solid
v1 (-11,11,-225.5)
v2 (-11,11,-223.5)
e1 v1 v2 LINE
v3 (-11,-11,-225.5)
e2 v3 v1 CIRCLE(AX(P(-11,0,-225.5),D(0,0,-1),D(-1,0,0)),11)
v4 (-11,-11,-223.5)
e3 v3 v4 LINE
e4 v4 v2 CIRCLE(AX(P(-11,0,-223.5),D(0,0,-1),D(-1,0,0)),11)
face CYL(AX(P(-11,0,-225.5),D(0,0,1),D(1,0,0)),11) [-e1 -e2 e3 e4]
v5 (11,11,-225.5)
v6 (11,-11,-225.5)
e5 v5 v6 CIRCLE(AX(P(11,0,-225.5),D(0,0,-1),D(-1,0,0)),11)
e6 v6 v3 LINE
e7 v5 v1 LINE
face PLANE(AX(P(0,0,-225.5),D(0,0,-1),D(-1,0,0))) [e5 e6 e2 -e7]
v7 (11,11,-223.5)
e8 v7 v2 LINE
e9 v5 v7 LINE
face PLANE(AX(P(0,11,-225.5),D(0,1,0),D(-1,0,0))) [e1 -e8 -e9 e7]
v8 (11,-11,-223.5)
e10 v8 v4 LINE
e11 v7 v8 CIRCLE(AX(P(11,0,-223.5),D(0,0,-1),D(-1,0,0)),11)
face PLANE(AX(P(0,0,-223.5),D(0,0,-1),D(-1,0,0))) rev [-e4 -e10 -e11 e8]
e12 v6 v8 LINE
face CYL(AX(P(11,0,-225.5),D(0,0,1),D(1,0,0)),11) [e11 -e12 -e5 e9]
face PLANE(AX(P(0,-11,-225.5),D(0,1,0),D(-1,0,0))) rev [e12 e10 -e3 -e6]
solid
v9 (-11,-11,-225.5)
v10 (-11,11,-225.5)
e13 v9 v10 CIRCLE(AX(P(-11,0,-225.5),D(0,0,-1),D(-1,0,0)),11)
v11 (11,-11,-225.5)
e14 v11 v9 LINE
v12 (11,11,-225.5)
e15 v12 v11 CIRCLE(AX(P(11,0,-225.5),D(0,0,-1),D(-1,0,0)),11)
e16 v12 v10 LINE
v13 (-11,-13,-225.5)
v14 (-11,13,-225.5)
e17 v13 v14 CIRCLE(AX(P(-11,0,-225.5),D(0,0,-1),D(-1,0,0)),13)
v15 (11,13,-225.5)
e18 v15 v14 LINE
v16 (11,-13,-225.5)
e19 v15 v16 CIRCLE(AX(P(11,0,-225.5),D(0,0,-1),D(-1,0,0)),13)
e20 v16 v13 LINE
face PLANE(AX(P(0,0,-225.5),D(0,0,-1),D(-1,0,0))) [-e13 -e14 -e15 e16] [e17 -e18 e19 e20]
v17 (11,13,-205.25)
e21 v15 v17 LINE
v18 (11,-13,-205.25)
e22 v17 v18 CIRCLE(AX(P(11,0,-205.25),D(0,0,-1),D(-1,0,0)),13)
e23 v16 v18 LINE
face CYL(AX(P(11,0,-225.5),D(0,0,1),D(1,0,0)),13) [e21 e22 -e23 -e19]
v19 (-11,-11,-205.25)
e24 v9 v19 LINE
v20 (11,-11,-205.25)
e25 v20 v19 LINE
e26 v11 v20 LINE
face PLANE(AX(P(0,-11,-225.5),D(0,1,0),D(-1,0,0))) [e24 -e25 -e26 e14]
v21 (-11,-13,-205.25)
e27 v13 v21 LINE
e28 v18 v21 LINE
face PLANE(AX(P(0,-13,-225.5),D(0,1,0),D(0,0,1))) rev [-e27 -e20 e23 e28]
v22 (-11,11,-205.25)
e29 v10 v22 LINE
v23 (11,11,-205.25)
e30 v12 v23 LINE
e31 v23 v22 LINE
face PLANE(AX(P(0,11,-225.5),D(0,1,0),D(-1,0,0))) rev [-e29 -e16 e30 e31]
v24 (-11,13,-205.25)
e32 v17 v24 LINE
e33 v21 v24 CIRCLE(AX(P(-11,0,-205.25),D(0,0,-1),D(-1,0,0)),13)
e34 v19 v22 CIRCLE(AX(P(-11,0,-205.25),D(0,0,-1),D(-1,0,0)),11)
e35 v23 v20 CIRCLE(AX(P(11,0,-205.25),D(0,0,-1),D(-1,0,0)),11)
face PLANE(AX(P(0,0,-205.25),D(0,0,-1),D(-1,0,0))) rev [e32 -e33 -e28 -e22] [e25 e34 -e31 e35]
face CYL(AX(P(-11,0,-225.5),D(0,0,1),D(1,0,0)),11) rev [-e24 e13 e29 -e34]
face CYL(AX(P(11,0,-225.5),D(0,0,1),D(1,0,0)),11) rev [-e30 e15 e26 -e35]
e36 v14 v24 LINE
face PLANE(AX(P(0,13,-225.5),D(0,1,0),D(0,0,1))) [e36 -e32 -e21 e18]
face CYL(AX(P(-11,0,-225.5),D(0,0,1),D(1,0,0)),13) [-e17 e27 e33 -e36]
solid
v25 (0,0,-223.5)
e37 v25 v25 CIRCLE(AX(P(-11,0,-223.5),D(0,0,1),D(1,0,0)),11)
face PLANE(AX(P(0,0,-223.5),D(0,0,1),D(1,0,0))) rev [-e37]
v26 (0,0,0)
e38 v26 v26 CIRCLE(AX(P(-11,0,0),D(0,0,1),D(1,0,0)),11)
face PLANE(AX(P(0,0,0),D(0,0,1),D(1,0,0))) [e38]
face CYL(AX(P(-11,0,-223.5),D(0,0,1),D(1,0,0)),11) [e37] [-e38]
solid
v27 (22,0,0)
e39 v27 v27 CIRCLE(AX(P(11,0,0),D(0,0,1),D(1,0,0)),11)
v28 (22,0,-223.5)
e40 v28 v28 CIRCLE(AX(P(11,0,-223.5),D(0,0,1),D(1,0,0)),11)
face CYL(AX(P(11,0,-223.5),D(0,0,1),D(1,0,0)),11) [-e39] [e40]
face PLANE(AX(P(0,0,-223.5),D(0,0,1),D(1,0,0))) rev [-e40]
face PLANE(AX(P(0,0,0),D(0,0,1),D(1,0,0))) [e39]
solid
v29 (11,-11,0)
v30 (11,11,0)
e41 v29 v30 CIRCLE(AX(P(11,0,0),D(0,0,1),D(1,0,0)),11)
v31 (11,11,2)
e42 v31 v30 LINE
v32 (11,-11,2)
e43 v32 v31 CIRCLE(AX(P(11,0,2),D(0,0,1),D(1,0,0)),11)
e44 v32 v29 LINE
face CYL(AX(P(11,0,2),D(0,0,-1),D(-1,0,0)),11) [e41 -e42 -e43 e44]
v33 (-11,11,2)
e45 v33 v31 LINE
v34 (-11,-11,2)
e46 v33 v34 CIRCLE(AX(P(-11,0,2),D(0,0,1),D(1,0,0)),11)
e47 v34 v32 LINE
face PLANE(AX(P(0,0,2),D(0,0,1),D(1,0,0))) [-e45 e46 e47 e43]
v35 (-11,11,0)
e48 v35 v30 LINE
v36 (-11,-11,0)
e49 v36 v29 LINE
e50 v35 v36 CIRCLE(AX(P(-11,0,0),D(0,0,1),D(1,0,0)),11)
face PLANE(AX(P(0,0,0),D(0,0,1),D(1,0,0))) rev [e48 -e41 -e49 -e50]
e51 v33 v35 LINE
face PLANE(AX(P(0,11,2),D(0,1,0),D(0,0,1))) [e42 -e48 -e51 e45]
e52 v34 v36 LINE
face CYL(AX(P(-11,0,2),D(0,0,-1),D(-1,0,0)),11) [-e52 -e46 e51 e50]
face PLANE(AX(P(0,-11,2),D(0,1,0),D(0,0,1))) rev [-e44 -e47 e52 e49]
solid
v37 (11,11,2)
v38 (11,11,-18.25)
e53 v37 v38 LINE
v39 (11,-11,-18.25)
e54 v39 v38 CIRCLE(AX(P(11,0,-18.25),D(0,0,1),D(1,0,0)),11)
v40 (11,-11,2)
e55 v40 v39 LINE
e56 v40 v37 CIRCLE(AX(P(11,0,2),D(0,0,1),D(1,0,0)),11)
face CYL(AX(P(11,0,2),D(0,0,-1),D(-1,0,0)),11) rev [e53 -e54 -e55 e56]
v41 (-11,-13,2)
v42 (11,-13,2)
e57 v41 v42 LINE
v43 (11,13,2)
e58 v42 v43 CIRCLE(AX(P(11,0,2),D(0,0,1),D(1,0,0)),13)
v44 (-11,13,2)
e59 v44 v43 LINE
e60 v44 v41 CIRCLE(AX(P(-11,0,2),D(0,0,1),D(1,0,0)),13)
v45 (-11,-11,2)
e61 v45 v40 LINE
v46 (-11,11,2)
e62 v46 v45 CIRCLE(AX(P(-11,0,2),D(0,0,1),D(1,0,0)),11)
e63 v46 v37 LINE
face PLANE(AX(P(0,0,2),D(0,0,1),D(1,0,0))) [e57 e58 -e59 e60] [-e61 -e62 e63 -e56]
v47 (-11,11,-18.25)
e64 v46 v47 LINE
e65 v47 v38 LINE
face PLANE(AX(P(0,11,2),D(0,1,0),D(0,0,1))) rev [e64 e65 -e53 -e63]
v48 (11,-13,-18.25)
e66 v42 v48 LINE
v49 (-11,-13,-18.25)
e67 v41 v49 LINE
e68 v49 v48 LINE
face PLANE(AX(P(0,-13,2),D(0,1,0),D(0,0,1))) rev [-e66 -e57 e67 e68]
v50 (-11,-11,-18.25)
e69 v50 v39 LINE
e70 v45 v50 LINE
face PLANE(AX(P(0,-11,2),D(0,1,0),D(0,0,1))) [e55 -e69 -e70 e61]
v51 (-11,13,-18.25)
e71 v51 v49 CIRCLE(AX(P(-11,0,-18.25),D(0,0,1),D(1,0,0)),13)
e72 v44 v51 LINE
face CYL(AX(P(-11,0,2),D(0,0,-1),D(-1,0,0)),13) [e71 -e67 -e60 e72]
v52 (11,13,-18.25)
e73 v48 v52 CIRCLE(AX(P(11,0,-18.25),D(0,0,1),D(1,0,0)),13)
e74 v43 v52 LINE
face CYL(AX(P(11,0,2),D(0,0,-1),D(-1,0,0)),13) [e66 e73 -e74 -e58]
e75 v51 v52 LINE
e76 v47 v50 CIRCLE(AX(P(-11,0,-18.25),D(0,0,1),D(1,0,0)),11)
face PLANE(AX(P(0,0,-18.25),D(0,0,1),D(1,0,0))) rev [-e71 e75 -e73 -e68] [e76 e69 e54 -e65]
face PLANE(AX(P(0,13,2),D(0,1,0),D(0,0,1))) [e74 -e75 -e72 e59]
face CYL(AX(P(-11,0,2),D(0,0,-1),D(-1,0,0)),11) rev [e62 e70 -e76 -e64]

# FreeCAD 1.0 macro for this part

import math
import FreeCAD as App
import Part
import Sketcher
from FreeCAD import Vector

doc = App.newDocument("Part")
params = doc.addObject("Spreadsheet::Sheet", "Params")
for row, (alias, value) in enumerate([
    ("sketch1_diameter", "22 mm"),
    ("pad1_length", "223.5 mm"),
    ("sketch2_diameter", "22 mm"),
    ("pad2_length", "223.5 mm"),
    ("sketch3_radius", "13 mm"),
    ("sketch3_radius2", "11 mm"),
    ("sketch3_width", "22 mm"),
    ("pad3_length", "2 mm"),
    ("pad3_length2", "18.25 mm"),
    ("sketch4_radius", "11 mm"),
    ("sketch4_width", "22 mm"),
    ("pad4_length", "2 mm"),
    ("sketch5_radius", "13 mm"),
    ("sketch5_radius2", "11 mm"),
    ("sketch5_width", "22 mm"),
    ("pad5_length", "2 mm"),
    ("pad5_length2", "18.25 mm"),
    ("sketch6_radius", "11 mm"),
    ("sketch6_width", "22 mm"),
    ("pad6_length", "2 mm"),
], start=1):
    params.set(f"A{row}", alias)
    params.set(f"B{row}", "=" + value)
    params.setAlias(f"B{row}", alias)

body = doc.addObject("PartDesign::Body", "Body")

# Sketch on XY plane
sketch1 = body.newObject("Sketcher::SketchObject", "Sketch")
sketch1.AttachmentSupport = (doc.getObject("XY_Plane"), [""])
sketch1.MapMode = "FlatFace"
sketch1.addGeometry(Part.Circle(Vector(-11, 0, 0), Vector(0, 0, 1), 11), False)
sketch1.addConstraint(Sketcher.Constraint("PointOnObject", 0, 3, -1))
sketch1.addConstraint(Sketcher.Constraint("Diameter", 0, 22.0))
sketch1.addConstraint(Sketcher.Constraint("DistanceX", 0, 3, -1, 1, 11.0))
sketch1.setExpression("Constraints[1]", "Params.sketch1_diameter")
pad1 = body.newObject("PartDesign::Pad", "Pad")
pad1.Profile = sketch1
pad1.setExpression("Length", "Params.pad1_length")
pad1.Reversed = True
body2 = doc.addObject("PartDesign::Body", "Body001")

# Sketch on XY plane
sketch2 = body2.newObject("Sketcher::SketchObject", "Sketch001")
sketch2.AttachmentSupport = (doc.getObject("XY_Plane001"), [""])
sketch2.MapMode = "FlatFace"
sketch2.addGeometry(Part.Circle(Vector(11, 0, 0), Vector(0, 0, 1), 11), False)
sketch2.addConstraint(Sketcher.Constraint("PointOnObject", 0, 3, -1))
sketch2.addConstraint(Sketcher.Constraint("Diameter", 0, 22.0))
sketch2.addConstraint(Sketcher.Constraint("DistanceX", -1, 1, 0, 3, 11.0))
sketch2.setExpression("Constraints[1]", "Params.sketch2_diameter")
pad2 = body2.newObject("PartDesign::Pad", "Pad001")
pad2.Profile = sketch2
pad2.setExpression("Length", "Params.pad2_length")
pad2.Reversed = True
body3 = doc.addObject("PartDesign::Body", "Body002")

# Sketch on XY plane
sketch3 = body3.newObject("Sketcher::SketchObject", "Sketch002")
sketch3.AttachmentSupport = (doc.getObject("XY_Plane002"), [""])
sketch3.MapMode = "FlatFace"
sketch3.addGeometry(Part.LineSegment(Vector(11, 13, 0), Vector(-11, 13, 0)), False)
sketch3.addGeometry(Part.ArcOfCircle(Part.Circle(Vector(-11, 0, 0), Vector(0, 0, 1), 13), math.radians(90), math.radians(270)), False)
sketch3.addGeometry(Part.LineSegment(Vector(-11, -13, 0), Vector(11, -13, 0)), False)
sketch3.addGeometry(Part.ArcOfCircle(Part.Circle(Vector(11, 0, 0), Vector(0, 0, 1), 13), math.radians(-90), math.radians(90)), False)
sketch3.addGeometry(Part.ArcOfCircle(Part.Circle(Vector(11, 0, 0), Vector(0, 0, 1), 11), math.radians(-90), math.radians(0)), False)
sketch3.addGeometry(Part.LineSegment(Vector(11, -11, 0), Vector(-11, -11, 0)), False)
sketch3.addGeometry(Part.ArcOfCircle(Part.Circle(Vector(-11, 0, 0), Vector(0, 0, 1), 11), math.radians(90), math.radians(270)), False)
sketch3.addGeometry(Part.LineSegment(Vector(-11, 11, 0), Vector(11, 11, 0)), False)
sketch3.addGeometry(Part.ArcOfCircle(Part.Circle(Vector(11, 0, 0), Vector(0, 0, 1), 11), math.radians(0), math.radians(90)), False)
sketch3.addConstraint(Sketcher.Constraint("Tangent", 0, 2, 1, 1))
sketch3.addConstraint(Sketcher.Constraint("Tangent", 1, 2, 2, 1))
sketch3.addConstraint(Sketcher.Constraint("Tangent", 2, 2, 3, 1))
sketch3.addConstraint(Sketcher.Constraint("Tangent", 3, 2, 0, 1))
sketch3.addConstraint(Sketcher.Constraint("Tangent", 4, 1, 5, 1))
sketch3.addConstraint(Sketcher.Constraint("Tangent", 5, 2, 6, 2))
sketch3.addConstraint(Sketcher.Constraint("Tangent", 6, 1, 7, 1))
sketch3.addConstraint(Sketcher.Constraint("Tangent", 7, 2, 8, 2))
sketch3.addConstraint(Sketcher.Constraint("Tangent", 8, 1, 4, 2))
sketch3.addConstraint(Sketcher.Constraint("Horizontal", 0))
sketch3.addConstraint(Sketcher.Constraint("Horizontal", 2))
sketch3.addConstraint(Sketcher.Constraint("Horizontal", 5))
sketch3.addConstraint(Sketcher.Constraint("Horizontal", 7))
sketch3.addConstraint(Sketcher.Constraint("Coincident", 4, 3, 3, 3))
sketch3.addConstraint(Sketcher.Constraint("Coincident", 6, 3, 1, 3))
sketch3.addConstraint(Sketcher.Constraint("Symmetric", 1, 3, 3, 3, -1, 1))
sketch3.addConstraint(Sketcher.Constraint("PointOnObject", 8, 1, -1))
sketch3.addConstraint(Sketcher.Constraint("Radius", 1, 13.0))
sketch3.addConstraint(Sketcher.Constraint("Radius", 4, 11.0))
sketch3.addConstraint(Sketcher.Constraint("DistanceX", 0, 2, 0, 1, 22.0))
sketch3.setExpression("Constraints[17]", "Params.sketch3_radius")
sketch3.setExpression("Constraints[18]", "Params.sketch3_radius2")
sketch3.setExpression("Constraints[19]", "Params.sketch3_width")
pad3 = body3.newObject("PartDesign::Pad", "Pad002")
pad3.Profile = sketch3
pad3.Type = "TwoLengths"
pad3.setExpression("Length", "Params.pad3_length")
pad3.setExpression("Length2", "Params.pad3_length2")
body4 = doc.addObject("PartDesign::Body", "Body003")

# Sketch on XY plane
sketch4 = body4.newObject("Sketcher::SketchObject", "Sketch003")
sketch4.AttachmentSupport = (doc.getObject("XY_Plane003"), [""])
sketch4.MapMode = "FlatFace"
sketch4.addGeometry(Part.ArcOfCircle(Part.Circle(Vector(-11, 0, 0), Vector(0, 0, 1), 11), math.radians(90), math.radians(270)), False)
sketch4.addGeometry(Part.LineSegment(Vector(-11, -11, 0), Vector(11, -11, 0)), False)
sketch4.addGeometry(Part.ArcOfCircle(Part.Circle(Vector(11, 0, 0), Vector(0, 0, 1), 11), math.radians(-90), math.radians(90)), False)
sketch4.addGeometry(Part.LineSegment(Vector(11, 11, 0), Vector(-11, 11, 0)), False)
sketch4.addConstraint(Sketcher.Constraint("Tangent", 0, 2, 1, 1))
sketch4.addConstraint(Sketcher.Constraint("Tangent", 1, 2, 2, 1))
sketch4.addConstraint(Sketcher.Constraint("Tangent", 2, 2, 3, 1))
sketch4.addConstraint(Sketcher.Constraint("Tangent", 3, 2, 0, 1))
sketch4.addConstraint(Sketcher.Constraint("Horizontal", 1))
sketch4.addConstraint(Sketcher.Constraint("Horizontal", 3))
sketch4.addConstraint(Sketcher.Constraint("Symmetric", 0, 3, 2, 3, -1, 1))
sketch4.addConstraint(Sketcher.Constraint("Radius", 0, 11.0))
sketch4.addConstraint(Sketcher.Constraint("DistanceX", 1, 1, 1, 2, 22.0))
sketch4.setExpression("Constraints[7]", "Params.sketch4_radius")
sketch4.setExpression("Constraints[8]", "Params.sketch4_width")
pad4 = body4.newObject("PartDesign::Pad", "Pad003")
pad4.Profile = sketch4
pad4.setExpression("Length", "Params.pad4_length")
body5 = doc.addObject("PartDesign::Body", "Body004")

# Sketch on XY plane
sketch5 = body5.newObject("Sketcher::SketchObject", "Sketch004")
sketch5.AttachmentSupport = (doc.getObject("XY_Plane004"), [""])
sketch5.MapMode = "FlatFace"
sketch5.AttachmentOffset = App.Placement(Vector(0, 0, -223.5), App.Rotation())
sketch5.addGeometry(Part.LineSegment(Vector(-11, 13, 0), Vector(11, 13, 0)), False)
sketch5.addGeometry(Part.ArcOfCircle(Part.Circle(Vector(11, 0, 0), Vector(0, 0, 1), 13), math.radians(-90), math.radians(90)), False)
sketch5.addGeometry(Part.LineSegment(Vector(11, -13, 0), Vector(-11, -13, 0)), False)
sketch5.addGeometry(Part.ArcOfCircle(Part.Circle(Vector(-11, 0, 0), Vector(0, 0, 1), 13), math.radians(90), math.radians(270)), False)
sketch5.addGeometry(Part.ArcOfCircle(Part.Circle(Vector(-11, 0, 0), Vector(0, 0, 1), 11), math.radians(180), math.radians(270)), False)
sketch5.addGeometry(Part.LineSegment(Vector(-11, -11, 0), Vector(11, -11, 0)), False)
sketch5.addGeometry(Part.ArcOfCircle(Part.Circle(Vector(11, 0, 0), Vector(0, 0, 1), 11), math.radians(-90), math.radians(90)), False)
sketch5.addGeometry(Part.LineSegment(Vector(11, 11, 0), Vector(-11, 11, 0)), False)
sketch5.addGeometry(Part.ArcOfCircle(Part.Circle(Vector(-11, 0, 0), Vector(0, 0, 1), 11), math.radians(90), math.radians(180)), False)
sketch5.addConstraint(Sketcher.Constraint("Tangent", 0, 2, 1, 2))
sketch5.addConstraint(Sketcher.Constraint("Tangent", 1, 1, 2, 1))
sketch5.addConstraint(Sketcher.Constraint("Tangent", 2, 2, 3, 2))
sketch5.addConstraint(Sketcher.Constraint("Tangent", 3, 1, 0, 1))
sketch5.addConstraint(Sketcher.Constraint("Tangent", 4, 2, 5, 1))
sketch5.addConstraint(Sketcher.Constraint("Tangent", 5, 2, 6, 1))
sketch5.addConstraint(Sketcher.Constraint("Tangent", 6, 2, 7, 1))
sketch5.addConstraint(Sketcher.Constraint("Tangent", 7, 2, 8, 1))
sketch5.addConstraint(Sketcher.Constraint("Tangent", 8, 2, 4, 1))
sketch5.addConstraint(Sketcher.Constraint("Horizontal", 0))
sketch5.addConstraint(Sketcher.Constraint("Horizontal", 2))
sketch5.addConstraint(Sketcher.Constraint("Horizontal", 5))
sketch5.addConstraint(Sketcher.Constraint("Horizontal", 7))
sketch5.addConstraint(Sketcher.Constraint("Coincident", 4, 3, 3, 3))
sketch5.addConstraint(Sketcher.Constraint("Coincident", 6, 3, 1, 3))
sketch5.addConstraint(Sketcher.Constraint("Symmetric", 1, 3, 3, 3, -1, 1))
sketch5.addConstraint(Sketcher.Constraint("PointOnObject", 8, 2, -1))
sketch5.addConstraint(Sketcher.Constraint("Radius", 1, 13.0))
sketch5.addConstraint(Sketcher.Constraint("Radius", 4, 11.0))
sketch5.addConstraint(Sketcher.Constraint("DistanceX", 0, 1, 0, 2, 22.0))
sketch5.setExpression("Constraints[17]", "Params.sketch5_radius")
sketch5.setExpression("Constraints[18]", "Params.sketch5_radius2")
sketch5.setExpression("Constraints[19]", "Params.sketch5_width")
pad5 = body5.newObject("PartDesign::Pad", "Pad004")
pad5.Profile = sketch5
pad5.Type = "TwoLengths"
pad5.setExpression("Length", "Params.pad5_length")
pad5.setExpression("Length2", "Params.pad5_length2")
pad5.Reversed = True
body6 = doc.addObject("PartDesign::Body", "Body005")

# Sketch on XY plane
sketch6 = body6.newObject("Sketcher::SketchObject", "Sketch005")
sketch6.AttachmentSupport = (doc.getObject("XY_Plane005"), [""])
sketch6.MapMode = "FlatFace"
sketch6.AttachmentOffset = App.Placement(Vector(0, 0, -223.5), App.Rotation())
sketch6.addGeometry(Part.ArcOfCircle(Part.Circle(Vector(11, 0, 0), Vector(0, 0, 1), 11), math.radians(-90), math.radians(90)), False)
sketch6.addGeometry(Part.LineSegment(Vector(11, -11, 0), Vector(-11, -11, 0)), False)
sketch6.addGeometry(Part.ArcOfCircle(Part.Circle(Vector(-11, 0, 0), Vector(0, 0, 1), 11), math.radians(90), math.radians(270)), False)
sketch6.addGeometry(Part.LineSegment(Vector(-11, 11, 0), Vector(11, 11, 0)), False)
sketch6.addConstraint(Sketcher.Constraint("Tangent", 0, 1, 1, 1))
sketch6.addConstraint(Sketcher.Constraint("Tangent", 1, 2, 2, 2))
sketch6.addConstraint(Sketcher.Constraint("Tangent", 2, 1, 3, 1))
sketch6.addConstraint(Sketcher.Constraint("Tangent", 3, 2, 0, 2))
sketch6.addConstraint(Sketcher.Constraint("Horizontal", 1))
sketch6.addConstraint(Sketcher.Constraint("Horizontal", 3))
sketch6.addConstraint(Sketcher.Constraint("Symmetric", 0, 3, 2, 3, -1, 1))
sketch6.addConstraint(Sketcher.Constraint("Radius", 0, 11.0))
sketch6.addConstraint(Sketcher.Constraint("DistanceX", 1, 2, 1, 1, 22.0))
sketch6.setExpression("Constraints[7]", "Params.sketch6_radius")
sketch6.setExpression("Constraints[8]", "Params.sketch6_width")
pad6 = body6.newObject("PartDesign::Pad", "Pad005")
pad6.Profile = sketch6
pad6.setExpression("Length", "Params.pad6_length")
pad6.Reversed = True

doc.recompute()
